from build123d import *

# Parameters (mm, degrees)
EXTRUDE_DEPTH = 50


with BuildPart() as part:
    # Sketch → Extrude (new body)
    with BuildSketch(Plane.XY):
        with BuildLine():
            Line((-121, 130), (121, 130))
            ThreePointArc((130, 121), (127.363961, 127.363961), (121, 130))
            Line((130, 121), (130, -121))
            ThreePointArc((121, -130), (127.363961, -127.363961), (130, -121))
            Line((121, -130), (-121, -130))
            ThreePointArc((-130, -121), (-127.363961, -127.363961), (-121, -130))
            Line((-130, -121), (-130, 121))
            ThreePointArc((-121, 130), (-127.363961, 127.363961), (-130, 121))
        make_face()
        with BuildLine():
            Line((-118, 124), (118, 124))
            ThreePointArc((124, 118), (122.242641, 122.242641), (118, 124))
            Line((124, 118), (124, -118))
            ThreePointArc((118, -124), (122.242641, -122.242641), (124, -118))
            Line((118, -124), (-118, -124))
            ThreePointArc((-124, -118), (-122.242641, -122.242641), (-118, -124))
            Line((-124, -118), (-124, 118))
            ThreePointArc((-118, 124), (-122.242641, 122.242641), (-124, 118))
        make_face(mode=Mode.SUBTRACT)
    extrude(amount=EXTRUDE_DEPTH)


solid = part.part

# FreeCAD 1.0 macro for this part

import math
import FreeCAD as App
import Part
import Sketcher

V = App.Vector
Q = App.Units.Quantity

doc = App.newDocument("Part")
body = doc.addObject("PartDesign::Body", "Body")

# Sketch on XY plane
sketch1 = body.newObject("Sketcher::SketchObject", "Sketch")
sketch1.AttachmentSupport = (doc.getObject("XY_Plane"), [""])
sketch1.MapMode = "FlatFace"
sketch1.addGeometry([
    Part.LineSegment(V(121, 130, 0), V(-121, 130, 0)),  # 0
    Part.ArcOfCircle(Part.Circle(V(-121, 121, 0), V(0, 0, 1), 9), math.radians(90.000001), math.radians(179.999999)),  # 1
    Part.LineSegment(V(-130, 121, 0), V(-130, -121, 0)),  # 2
    Part.ArcOfCircle(Part.Circle(V(-121, -121, 0), V(0, 0, 1), 9), math.radians(-179.999999), math.radians(-90.000001)),  # 3
    Part.LineSegment(V(-121, -130, 0), V(121, -130, 0)),  # 4
    Part.ArcOfCircle(Part.Circle(V(121, -121, 0), V(0, 0, 1), 9), math.radians(-89.999999), math.radians(-0.000001)),  # 5
    Part.LineSegment(V(130, -121, 0), V(130, 121, 0)),  # 6
    Part.ArcOfCircle(Part.Circle(V(121, 121, 0), V(0, 0, 1), 9), math.radians(0.000001), math.radians(89.999999)),  # 7
    Part.LineSegment(V(-118, 124, 0), V(118, 124, 0)),  # 8
    Part.ArcOfCircle(Part.Circle(V(118.000001, 118.000001, 0), V(0, 0, 1), 5.999999), math.radians(-0.00001), math.radians(90.00001)),  # 9
    Part.LineSegment(V(124, 118, 0), V(124, -118, 0)),  # 10
    Part.ArcOfCircle(Part.Circle(V(118.000001, -118.000001, 0), V(0, 0, 1), 5.999999), math.radians(-90.00001), math.radians(0.00001)),  # 11
    Part.LineSegment(V(118, -124, 0), V(-118, -124, 0)),  # 12
    Part.ArcOfCircle(Part.Circle(V(-118.000001, -118.000001, 0), V(0, 0, 1), 5.999999), math.radians(179.99999), math.radians(270.00001)),  # 13
    Part.LineSegment(V(-124, -118, 0), V(-124, 118, 0)),  # 14
    Part.ArcOfCircle(Part.Circle(V(-118.000001, 118.000001, 0), V(0, 0, 1), 5.999999), math.radians(89.99999), math.radians(180.00001)),  # 15
], False)
sketch1.addConstraint([
    Sketcher.Constraint("Tangent", 0, 2, 1, 1),
    Sketcher.Constraint("Tangent", 1, 2, 2, 1),
    Sketcher.Constraint("Tangent", 2, 2, 3, 1),
    Sketcher.Constraint("Tangent", 3, 2, 4, 1),
    Sketcher.Constraint("Tangent", 4, 2, 5, 1),
    Sketcher.Constraint("Tangent", 5, 2, 6, 1),
    Sketcher.Constraint("Tangent", 6, 2, 7, 1),
    Sketcher.Constraint("Tangent", 7, 2, 0, 1),
    Sketcher.Constraint("Tangent", 8, 2, 9, 2),
    Sketcher.Constraint("Tangent", 9, 1, 10, 1),
    Sketcher.Constraint("Tangent", 10, 2, 11, 2),
    Sketcher.Constraint("Tangent", 11, 1, 12, 1),
    Sketcher.Constraint("Tangent", 12, 2, 13, 2),
    Sketcher.Constraint("Tangent", 13, 1, 14, 1),
    Sketcher.Constraint("Tangent", 14, 2, 15, 2),
    Sketcher.Constraint("Tangent", 15, 1, 8, 1),
    Sketcher.Constraint("Horizontal", 0),
    Sketcher.Constraint("Vertical", 2),
    Sketcher.Constraint("Horizontal", 4),
    Sketcher.Constraint("Vertical", 6),
    Sketcher.Constraint("Horizontal", 8),
    Sketcher.Constraint("Vertical", 10),
    Sketcher.Constraint("Horizontal", 12),
    Sketcher.Constraint("Vertical", 14),
    Sketcher.Constraint("Equal", 1, 3),
    Sketcher.Constraint("Equal", 3, 5),
    Sketcher.Constraint("Equal", 5, 7),
    Sketcher.Constraint("Equal", 9, 11),
    Sketcher.Constraint("Equal", 11, 13),
    Sketcher.Constraint("Equal", 13, 15),
    Sketcher.Constraint("Symmetric", 1, 3, 5, 3, -1, 1),
    Sketcher.Constraint("Symmetric", 9, 3, 13, 3, -1, 1),
    Sketcher.Constraint("Equal", 4, 2),
    Sketcher.Constraint("Equal", 12, 10),
    Sketcher.Constraint("Radius", 1, Q("9 mm")),
    Sketcher.Constraint("Radius", 9, Q("5.999999 mm")),
    Sketcher.Constraint("DistanceX", 0, 2, 0, 1, Q("242 mm")),
    Sketcher.Constraint("DistanceX", 8, 1, 8, 2, Q("236 mm")),
])
pad1 = body.newObject("PartDesign::Pad", "Pad")
pad1.Profile = sketch1
pad1.Length = 50

doc.recompute()
